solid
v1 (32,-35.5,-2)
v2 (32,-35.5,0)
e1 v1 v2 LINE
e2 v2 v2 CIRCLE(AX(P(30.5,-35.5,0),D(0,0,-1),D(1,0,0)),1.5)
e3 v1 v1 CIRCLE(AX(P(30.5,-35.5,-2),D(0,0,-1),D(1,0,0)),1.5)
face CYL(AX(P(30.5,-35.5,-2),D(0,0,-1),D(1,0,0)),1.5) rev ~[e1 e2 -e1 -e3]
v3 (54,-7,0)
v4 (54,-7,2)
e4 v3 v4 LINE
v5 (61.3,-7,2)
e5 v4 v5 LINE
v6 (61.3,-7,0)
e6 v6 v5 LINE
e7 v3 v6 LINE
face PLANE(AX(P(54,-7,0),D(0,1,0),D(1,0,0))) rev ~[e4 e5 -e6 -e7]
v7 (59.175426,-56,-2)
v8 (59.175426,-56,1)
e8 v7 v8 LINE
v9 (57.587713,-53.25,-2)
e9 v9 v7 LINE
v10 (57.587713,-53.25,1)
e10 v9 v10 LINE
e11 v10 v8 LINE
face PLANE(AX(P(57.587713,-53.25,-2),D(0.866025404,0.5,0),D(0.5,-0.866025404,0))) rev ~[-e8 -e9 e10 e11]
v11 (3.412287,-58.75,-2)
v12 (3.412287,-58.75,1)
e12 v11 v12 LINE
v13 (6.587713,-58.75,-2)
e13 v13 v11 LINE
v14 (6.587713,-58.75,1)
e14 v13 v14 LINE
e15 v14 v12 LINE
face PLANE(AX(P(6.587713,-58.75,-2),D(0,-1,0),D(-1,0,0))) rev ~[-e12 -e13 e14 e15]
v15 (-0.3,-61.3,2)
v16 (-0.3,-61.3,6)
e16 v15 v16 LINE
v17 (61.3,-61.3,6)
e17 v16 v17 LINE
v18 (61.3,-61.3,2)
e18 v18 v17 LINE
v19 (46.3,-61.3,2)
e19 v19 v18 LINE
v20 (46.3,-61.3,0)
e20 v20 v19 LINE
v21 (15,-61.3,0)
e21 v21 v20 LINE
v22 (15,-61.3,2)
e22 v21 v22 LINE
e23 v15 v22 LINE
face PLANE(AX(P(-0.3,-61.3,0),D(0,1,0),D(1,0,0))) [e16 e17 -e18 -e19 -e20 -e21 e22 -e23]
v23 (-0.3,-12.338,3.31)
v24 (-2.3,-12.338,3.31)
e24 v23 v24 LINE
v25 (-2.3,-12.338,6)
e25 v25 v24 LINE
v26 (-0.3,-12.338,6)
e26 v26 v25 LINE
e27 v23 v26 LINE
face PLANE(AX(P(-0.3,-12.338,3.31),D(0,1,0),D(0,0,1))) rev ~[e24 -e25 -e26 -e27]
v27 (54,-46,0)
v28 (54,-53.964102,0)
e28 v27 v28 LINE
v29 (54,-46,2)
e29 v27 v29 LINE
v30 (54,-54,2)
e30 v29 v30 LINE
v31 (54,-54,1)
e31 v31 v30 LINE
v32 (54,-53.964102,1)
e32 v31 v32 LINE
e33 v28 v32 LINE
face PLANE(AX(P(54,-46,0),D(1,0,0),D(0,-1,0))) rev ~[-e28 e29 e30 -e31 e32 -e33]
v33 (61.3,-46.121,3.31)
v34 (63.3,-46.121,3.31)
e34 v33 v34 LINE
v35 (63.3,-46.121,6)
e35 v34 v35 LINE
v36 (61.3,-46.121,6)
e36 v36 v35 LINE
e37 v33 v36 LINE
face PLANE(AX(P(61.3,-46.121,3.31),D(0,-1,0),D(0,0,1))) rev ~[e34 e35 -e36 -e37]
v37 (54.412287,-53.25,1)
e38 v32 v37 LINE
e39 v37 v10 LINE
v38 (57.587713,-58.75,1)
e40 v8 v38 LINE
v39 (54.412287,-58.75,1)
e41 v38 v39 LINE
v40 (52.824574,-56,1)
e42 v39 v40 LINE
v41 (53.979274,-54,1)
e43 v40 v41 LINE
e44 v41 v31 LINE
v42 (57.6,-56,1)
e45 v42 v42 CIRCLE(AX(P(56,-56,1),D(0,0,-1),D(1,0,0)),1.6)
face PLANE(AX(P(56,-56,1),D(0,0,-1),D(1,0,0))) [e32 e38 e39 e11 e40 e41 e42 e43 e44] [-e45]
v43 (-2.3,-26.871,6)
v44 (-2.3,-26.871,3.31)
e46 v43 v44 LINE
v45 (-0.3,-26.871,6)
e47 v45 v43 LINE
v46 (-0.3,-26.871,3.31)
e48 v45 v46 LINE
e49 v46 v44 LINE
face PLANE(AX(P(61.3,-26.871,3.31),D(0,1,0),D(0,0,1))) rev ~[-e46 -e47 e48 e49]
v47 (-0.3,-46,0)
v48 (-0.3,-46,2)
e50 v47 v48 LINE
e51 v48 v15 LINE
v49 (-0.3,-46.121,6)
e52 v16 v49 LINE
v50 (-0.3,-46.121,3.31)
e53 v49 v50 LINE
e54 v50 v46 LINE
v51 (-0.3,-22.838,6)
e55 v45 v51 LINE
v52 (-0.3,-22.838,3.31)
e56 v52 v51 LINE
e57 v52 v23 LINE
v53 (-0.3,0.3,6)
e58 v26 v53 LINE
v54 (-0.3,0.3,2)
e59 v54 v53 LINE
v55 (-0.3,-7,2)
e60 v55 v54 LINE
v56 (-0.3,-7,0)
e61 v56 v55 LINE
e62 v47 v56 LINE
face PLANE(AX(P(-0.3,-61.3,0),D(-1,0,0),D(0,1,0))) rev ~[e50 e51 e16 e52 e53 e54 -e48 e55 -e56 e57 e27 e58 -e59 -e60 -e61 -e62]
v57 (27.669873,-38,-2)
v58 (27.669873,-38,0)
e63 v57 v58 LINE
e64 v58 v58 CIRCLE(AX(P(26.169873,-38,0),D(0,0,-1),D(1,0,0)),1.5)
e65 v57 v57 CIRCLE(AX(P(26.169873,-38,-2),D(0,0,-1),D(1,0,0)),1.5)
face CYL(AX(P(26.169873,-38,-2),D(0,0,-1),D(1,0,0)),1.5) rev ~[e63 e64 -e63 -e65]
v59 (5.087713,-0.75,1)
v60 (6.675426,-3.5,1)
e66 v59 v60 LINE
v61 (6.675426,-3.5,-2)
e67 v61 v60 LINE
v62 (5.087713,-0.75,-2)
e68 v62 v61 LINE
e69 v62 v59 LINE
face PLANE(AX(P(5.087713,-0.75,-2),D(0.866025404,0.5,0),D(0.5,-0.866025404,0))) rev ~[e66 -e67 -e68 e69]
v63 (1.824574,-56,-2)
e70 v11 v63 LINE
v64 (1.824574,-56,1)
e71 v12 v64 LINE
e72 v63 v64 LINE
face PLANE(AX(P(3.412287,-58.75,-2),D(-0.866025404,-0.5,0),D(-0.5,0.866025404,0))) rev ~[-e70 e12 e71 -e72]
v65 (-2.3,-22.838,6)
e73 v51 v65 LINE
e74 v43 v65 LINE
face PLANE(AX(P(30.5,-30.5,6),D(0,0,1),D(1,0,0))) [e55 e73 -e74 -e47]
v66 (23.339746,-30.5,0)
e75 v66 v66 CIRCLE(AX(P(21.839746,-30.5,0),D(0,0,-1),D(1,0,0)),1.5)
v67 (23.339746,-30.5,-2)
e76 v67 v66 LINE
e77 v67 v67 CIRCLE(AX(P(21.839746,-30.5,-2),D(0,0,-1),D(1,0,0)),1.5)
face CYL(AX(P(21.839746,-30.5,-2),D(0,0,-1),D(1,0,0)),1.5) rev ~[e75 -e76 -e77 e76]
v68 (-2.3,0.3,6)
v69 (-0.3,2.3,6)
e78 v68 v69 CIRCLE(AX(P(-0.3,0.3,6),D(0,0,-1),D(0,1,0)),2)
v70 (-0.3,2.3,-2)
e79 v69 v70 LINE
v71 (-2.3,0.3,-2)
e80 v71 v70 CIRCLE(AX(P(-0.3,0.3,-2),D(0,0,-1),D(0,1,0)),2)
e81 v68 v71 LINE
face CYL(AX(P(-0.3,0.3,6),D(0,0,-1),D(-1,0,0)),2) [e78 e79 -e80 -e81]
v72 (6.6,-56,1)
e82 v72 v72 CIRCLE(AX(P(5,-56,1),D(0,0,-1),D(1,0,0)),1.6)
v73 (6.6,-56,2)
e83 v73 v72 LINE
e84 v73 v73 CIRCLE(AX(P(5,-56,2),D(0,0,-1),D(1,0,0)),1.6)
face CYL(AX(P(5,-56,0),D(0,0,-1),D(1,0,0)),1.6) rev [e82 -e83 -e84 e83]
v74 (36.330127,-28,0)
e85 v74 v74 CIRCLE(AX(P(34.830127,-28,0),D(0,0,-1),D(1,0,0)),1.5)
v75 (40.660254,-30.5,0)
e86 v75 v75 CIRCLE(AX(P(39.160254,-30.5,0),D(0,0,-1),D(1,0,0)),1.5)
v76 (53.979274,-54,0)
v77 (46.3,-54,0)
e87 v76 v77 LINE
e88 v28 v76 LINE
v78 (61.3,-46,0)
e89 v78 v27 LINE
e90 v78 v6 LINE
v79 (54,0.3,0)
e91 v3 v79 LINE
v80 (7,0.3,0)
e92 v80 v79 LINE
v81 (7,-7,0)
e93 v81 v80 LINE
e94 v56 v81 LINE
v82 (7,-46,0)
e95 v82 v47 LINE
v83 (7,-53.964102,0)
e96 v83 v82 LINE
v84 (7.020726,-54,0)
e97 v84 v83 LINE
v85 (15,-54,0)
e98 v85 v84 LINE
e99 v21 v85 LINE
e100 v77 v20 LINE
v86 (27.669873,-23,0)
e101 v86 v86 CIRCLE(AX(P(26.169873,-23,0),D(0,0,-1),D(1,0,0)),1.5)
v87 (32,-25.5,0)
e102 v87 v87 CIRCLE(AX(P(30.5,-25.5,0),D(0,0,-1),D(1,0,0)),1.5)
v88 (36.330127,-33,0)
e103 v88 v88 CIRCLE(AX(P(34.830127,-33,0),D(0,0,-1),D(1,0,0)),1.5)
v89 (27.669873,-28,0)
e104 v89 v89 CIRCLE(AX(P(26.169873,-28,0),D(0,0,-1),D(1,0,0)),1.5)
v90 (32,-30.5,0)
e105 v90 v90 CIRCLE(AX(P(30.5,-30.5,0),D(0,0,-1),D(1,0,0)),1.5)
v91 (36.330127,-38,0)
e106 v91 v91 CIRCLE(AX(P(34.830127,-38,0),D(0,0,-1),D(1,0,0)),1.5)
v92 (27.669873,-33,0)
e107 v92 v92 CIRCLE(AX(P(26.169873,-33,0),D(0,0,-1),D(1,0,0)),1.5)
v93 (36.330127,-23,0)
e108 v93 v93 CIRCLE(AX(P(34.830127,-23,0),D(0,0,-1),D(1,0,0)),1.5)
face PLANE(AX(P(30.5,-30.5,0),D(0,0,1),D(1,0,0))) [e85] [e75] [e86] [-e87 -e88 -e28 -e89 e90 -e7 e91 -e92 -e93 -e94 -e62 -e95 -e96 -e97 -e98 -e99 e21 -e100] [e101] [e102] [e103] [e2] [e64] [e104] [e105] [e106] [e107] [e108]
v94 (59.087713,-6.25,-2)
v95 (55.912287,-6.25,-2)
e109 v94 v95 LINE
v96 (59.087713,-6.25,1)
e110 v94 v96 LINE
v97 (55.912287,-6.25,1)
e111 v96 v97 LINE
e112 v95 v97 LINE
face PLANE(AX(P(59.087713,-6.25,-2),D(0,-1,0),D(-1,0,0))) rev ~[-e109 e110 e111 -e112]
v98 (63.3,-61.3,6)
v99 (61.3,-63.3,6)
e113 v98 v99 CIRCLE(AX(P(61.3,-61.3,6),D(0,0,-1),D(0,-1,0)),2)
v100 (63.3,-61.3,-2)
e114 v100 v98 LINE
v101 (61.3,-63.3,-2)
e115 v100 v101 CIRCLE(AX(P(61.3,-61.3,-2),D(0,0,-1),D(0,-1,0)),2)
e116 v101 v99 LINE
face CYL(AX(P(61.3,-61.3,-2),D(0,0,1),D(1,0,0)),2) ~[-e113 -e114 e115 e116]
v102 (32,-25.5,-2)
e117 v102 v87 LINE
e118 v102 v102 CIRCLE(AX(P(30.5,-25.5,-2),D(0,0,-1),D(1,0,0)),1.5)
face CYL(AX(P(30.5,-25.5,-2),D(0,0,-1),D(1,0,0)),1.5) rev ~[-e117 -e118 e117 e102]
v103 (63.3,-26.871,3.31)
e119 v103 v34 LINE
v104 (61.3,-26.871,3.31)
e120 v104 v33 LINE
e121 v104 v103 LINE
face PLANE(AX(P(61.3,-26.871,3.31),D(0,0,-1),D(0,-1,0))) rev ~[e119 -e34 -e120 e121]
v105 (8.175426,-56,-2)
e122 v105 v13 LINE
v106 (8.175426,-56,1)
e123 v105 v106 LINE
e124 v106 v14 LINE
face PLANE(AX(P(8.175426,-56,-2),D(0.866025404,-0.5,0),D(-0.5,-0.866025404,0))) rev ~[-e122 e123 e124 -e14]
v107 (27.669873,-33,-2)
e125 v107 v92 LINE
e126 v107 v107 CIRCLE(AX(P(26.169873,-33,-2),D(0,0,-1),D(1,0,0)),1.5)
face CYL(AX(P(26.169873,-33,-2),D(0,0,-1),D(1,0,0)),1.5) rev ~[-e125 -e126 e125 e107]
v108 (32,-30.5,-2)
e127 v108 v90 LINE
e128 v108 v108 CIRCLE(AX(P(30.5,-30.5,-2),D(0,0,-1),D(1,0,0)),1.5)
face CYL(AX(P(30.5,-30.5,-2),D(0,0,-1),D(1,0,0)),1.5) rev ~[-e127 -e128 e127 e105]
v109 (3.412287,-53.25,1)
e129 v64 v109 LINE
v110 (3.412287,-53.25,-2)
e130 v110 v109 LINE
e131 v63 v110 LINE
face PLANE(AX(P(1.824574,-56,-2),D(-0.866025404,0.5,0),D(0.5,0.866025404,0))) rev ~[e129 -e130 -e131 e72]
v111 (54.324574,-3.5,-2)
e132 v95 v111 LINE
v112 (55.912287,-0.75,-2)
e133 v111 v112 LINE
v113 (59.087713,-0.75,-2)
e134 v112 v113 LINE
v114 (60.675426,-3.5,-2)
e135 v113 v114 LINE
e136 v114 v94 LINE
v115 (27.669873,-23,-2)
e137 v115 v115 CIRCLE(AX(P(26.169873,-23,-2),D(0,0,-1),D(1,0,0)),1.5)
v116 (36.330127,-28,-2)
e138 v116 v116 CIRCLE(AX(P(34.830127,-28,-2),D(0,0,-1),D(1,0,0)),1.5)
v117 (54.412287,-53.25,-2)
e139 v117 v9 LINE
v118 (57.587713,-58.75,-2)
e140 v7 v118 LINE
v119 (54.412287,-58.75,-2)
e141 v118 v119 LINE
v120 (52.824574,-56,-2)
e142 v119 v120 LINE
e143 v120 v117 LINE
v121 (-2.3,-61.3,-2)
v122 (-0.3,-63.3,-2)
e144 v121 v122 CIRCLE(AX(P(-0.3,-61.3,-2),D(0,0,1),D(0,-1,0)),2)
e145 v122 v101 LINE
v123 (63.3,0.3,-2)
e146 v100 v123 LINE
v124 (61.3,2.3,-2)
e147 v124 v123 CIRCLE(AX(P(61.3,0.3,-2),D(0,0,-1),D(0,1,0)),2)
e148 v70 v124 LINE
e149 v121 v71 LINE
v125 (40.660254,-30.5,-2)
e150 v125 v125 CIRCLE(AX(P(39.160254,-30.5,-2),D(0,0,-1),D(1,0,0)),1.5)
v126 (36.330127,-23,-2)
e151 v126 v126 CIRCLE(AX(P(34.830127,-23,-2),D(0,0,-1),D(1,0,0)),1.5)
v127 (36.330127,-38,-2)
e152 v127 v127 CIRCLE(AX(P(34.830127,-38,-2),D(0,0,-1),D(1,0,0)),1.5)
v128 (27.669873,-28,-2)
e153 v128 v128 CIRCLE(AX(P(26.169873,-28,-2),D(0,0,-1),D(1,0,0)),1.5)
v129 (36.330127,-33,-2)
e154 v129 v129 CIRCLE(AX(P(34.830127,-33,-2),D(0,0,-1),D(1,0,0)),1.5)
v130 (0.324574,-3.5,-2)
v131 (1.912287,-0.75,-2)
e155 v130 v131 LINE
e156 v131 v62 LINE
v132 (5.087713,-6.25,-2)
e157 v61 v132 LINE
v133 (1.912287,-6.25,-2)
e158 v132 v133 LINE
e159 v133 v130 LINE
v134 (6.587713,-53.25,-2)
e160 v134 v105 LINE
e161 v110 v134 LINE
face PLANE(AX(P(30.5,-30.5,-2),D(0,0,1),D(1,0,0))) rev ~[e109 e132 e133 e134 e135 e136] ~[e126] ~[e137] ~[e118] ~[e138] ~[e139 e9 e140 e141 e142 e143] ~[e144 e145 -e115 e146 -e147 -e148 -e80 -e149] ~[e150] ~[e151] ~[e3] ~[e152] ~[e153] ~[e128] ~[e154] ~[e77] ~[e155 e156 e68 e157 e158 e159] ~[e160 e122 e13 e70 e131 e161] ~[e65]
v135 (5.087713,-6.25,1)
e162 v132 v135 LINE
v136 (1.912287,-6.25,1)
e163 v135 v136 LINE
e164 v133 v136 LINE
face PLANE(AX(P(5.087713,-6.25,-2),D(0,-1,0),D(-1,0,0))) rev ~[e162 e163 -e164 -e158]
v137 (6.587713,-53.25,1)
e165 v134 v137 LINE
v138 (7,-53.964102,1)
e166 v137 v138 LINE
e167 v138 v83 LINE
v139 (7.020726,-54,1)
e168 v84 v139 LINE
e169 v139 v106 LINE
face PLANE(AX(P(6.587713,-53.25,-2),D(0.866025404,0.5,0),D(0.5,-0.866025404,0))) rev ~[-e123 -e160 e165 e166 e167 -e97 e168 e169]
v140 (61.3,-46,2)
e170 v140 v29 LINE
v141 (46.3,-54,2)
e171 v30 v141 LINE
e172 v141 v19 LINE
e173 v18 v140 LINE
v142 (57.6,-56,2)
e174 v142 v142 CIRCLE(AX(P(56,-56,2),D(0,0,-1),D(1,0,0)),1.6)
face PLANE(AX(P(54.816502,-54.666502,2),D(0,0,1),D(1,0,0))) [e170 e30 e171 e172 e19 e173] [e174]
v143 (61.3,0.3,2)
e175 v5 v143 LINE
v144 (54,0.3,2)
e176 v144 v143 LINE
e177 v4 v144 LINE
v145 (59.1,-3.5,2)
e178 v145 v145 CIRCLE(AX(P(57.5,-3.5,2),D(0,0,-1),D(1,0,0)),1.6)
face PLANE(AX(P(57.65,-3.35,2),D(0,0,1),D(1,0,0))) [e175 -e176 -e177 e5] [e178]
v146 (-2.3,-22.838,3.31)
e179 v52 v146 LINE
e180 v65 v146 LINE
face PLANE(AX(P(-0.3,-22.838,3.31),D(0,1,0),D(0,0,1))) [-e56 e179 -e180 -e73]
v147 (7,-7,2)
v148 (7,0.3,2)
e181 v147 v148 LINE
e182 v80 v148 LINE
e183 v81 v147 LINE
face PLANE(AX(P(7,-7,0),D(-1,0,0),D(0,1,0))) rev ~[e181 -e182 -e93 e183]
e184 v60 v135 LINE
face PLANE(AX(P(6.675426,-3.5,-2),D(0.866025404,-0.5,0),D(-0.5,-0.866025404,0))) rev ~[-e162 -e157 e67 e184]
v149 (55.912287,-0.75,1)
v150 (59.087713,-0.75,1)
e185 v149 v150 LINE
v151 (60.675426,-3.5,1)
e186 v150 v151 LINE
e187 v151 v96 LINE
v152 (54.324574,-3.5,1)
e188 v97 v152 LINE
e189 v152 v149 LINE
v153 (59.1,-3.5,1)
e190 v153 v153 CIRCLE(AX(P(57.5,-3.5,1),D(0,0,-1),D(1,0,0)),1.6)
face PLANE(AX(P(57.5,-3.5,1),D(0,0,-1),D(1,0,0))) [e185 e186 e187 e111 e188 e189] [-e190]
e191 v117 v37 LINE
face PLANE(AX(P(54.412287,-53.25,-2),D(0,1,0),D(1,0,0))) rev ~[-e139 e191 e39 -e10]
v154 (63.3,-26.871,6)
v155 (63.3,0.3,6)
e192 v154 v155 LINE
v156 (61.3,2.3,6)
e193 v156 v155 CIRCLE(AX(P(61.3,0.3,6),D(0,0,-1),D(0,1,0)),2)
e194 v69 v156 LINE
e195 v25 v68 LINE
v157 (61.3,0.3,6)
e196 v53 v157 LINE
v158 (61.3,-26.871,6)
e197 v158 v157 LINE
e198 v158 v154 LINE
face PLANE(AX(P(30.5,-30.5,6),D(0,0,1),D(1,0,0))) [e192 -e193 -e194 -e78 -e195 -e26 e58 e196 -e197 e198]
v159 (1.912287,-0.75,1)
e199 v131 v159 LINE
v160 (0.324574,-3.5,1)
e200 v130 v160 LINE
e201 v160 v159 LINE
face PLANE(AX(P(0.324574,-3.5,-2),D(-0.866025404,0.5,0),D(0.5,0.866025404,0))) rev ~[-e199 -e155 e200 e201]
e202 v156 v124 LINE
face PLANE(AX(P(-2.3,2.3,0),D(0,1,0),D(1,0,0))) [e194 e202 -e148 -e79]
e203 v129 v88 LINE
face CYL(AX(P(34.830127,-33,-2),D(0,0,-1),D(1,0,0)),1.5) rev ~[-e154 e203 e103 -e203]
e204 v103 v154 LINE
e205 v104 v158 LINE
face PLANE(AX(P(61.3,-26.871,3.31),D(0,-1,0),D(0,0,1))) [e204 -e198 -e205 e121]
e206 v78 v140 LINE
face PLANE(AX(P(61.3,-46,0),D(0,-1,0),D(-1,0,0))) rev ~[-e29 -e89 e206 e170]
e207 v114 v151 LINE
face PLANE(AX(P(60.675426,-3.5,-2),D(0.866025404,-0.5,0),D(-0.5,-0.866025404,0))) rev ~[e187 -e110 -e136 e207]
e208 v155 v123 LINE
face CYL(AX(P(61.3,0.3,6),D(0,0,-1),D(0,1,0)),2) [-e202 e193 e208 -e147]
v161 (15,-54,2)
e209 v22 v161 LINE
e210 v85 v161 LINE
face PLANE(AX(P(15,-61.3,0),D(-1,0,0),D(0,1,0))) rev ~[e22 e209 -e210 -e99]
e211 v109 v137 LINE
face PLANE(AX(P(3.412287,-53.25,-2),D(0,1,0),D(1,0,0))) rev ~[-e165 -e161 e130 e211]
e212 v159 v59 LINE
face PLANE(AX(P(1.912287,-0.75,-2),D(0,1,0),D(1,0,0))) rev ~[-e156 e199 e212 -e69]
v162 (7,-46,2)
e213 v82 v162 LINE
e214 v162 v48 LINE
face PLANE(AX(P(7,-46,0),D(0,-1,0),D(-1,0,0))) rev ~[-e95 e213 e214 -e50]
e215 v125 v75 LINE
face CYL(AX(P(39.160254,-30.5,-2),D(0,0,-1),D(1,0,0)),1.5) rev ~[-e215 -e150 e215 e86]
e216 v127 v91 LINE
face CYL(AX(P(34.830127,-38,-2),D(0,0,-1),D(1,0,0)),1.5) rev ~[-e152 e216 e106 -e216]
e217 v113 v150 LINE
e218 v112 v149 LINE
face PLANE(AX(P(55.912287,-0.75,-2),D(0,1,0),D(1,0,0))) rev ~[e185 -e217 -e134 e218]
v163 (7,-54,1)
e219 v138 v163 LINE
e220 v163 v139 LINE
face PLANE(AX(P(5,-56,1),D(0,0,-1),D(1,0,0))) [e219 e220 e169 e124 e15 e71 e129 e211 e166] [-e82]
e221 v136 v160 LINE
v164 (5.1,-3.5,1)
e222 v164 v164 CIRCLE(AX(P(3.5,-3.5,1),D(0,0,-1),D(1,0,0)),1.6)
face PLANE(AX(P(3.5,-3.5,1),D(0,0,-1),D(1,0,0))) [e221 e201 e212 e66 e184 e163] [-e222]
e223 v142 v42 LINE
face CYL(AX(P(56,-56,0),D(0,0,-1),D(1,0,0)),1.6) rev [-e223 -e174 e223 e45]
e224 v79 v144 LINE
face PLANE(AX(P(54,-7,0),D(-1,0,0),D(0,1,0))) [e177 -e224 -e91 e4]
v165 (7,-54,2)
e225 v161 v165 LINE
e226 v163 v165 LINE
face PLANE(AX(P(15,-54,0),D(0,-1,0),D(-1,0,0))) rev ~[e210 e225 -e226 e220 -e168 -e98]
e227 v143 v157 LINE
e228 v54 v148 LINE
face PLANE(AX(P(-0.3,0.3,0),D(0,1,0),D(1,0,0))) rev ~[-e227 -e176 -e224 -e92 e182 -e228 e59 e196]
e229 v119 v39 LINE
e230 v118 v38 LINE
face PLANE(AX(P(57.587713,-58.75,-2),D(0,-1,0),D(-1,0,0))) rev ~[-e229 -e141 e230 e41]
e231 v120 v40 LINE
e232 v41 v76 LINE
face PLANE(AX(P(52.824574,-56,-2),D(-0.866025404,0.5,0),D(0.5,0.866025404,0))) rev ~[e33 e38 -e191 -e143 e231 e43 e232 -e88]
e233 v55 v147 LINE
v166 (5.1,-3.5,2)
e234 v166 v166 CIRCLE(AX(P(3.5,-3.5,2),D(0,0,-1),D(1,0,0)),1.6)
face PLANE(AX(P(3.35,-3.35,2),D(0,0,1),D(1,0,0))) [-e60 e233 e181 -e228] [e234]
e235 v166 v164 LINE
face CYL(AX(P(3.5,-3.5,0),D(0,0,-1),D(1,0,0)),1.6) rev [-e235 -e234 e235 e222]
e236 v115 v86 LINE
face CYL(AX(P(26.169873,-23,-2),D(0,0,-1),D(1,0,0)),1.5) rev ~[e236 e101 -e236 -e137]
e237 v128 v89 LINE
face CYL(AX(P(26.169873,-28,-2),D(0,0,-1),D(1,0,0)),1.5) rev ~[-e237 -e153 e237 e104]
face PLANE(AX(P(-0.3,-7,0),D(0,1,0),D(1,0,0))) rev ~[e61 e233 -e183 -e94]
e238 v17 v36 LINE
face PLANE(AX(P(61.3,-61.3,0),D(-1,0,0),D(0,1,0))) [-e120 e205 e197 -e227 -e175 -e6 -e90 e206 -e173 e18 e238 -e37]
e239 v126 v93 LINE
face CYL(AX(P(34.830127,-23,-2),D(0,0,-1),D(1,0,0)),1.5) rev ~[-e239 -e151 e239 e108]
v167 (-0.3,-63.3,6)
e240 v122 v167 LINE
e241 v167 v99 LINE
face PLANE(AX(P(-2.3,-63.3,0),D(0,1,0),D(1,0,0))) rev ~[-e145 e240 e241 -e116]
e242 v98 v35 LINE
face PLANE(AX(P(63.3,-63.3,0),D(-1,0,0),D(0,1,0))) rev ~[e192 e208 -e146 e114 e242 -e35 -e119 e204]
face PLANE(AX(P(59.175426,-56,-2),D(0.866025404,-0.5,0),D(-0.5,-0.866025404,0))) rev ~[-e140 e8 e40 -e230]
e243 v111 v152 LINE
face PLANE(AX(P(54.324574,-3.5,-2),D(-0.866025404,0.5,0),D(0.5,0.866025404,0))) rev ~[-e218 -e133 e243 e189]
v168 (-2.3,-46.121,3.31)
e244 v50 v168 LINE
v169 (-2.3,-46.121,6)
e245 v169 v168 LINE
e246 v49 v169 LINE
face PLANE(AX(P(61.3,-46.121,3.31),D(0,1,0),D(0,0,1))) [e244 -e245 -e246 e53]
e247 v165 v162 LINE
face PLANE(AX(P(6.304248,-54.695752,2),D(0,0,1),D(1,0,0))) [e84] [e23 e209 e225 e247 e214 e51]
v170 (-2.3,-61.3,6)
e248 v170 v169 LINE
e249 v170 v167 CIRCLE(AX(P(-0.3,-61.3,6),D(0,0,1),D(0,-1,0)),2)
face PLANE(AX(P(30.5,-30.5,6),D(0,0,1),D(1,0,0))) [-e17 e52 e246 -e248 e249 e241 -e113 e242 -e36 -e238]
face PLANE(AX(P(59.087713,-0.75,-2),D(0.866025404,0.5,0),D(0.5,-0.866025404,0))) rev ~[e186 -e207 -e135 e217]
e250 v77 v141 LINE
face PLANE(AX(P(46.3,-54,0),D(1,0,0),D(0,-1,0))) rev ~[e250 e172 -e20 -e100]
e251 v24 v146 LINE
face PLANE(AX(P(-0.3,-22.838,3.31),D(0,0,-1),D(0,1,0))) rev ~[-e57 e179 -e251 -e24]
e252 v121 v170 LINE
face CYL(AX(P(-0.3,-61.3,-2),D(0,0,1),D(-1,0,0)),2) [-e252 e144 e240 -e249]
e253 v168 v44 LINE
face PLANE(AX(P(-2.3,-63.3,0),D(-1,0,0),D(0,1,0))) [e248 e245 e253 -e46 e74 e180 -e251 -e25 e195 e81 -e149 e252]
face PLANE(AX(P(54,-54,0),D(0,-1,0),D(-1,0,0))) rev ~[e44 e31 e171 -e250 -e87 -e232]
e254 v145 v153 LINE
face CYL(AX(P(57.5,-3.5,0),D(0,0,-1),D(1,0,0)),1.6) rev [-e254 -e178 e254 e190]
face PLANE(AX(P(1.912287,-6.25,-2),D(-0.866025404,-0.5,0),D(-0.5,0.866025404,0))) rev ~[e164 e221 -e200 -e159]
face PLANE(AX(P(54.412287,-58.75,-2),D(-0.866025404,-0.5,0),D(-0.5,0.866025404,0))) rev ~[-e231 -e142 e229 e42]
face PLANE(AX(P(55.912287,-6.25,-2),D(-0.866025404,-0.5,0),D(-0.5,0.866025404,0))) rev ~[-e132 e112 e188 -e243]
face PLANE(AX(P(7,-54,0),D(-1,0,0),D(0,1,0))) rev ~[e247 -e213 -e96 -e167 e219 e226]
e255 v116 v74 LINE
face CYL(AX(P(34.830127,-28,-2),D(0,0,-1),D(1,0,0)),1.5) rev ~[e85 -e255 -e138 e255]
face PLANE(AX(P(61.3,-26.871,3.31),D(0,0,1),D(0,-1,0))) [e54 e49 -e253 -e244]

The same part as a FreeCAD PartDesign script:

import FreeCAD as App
import Part
import Sketcher
Q = App.Units.Quantity


def edges_at(feature, points):
    """Names of the edges that pass closest to the given points."""
    edges = feature.Shape.Edges
    near = lambda p: min(range(len(edges)), key=lambda i: edges[i].distToShape(Part.Vertex(*p))[0])
    return sorted({f"Edge{near(p) + 1}" for p in points})

doc = App.newDocument("Part")
body = doc.addObject("PartDesign::Body", "Body")

# Sketch on XY plane
sketch1 = body.newObject("Sketcher::SketchObject", "Sketch")
sketch1.AttachmentSupport = (doc.getObject("XY_Plane"), [""])
sketch1.MapMode = "FlatFace"
sketch1.addGeometry([
    Part.LineSegment(App.Vector(-2.3, 2.3, 0), App.Vector(-2.3, -63.3, 0)),  # 0
    Part.LineSegment(App.Vector(-2.3, -63.3, 0), App.Vector(63.3, -63.3, 0)),  # 1
    Part.LineSegment(App.Vector(63.3, -63.3, 0), App.Vector(63.3, 2.3, 0)),  # 2
    Part.LineSegment(App.Vector(63.3, 2.3, 0), App.Vector(-2.3, 2.3, 0)),  # 3
    Part.Circle(App.Vector(5, -56, 0), App.Vector(0, 0, 1), 1.6),  # 4
    Part.Circle(App.Vector(56, -56, 0), App.Vector(0, 0, 1), 1.6),  # 5
    Part.Circle(App.Vector(3.5, -3.5, 0), App.Vector(0, 0, 1), 1.6),  # 6
    Part.Circle(App.Vector(57.5, -3.5, 0), App.Vector(0, 0, 1), 1.6),  # 7
], False)
sketch1.addConstraint([
    Sketcher.Constraint("Coincident", 0, 2, 1, 1),
    Sketcher.Constraint("Coincident", 1, 2, 2, 1),
    Sketcher.Constraint("Coincident", 2, 2, 3, 1),
    Sketcher.Constraint("Coincident", 3, 2, 0, 1),
    Sketcher.Constraint("Vertical", 0),
    Sketcher.Constraint("Horizontal", 1),
    Sketcher.Constraint("Vertical", 2),
    Sketcher.Constraint("Horizontal", 3),
    Sketcher.Constraint("Equal", 4, 5),
    Sketcher.Constraint("Equal", 5, 6),
    Sketcher.Constraint("Equal", 6, 7),
    Sketcher.Constraint("Horizontal", 4, 3, 5, 3),
    Sketcher.Constraint("Horizontal", 6, 3, 7, 3),
    Sketcher.Constraint("Equal", 3, 0),
    Sketcher.Constraint("Diameter", 4, Q("3.2 mm")),
    Sketcher.Constraint("DistanceX", 1, 1, 1, 2, Q("65.6 mm")),
    Sketcher.Constraint("DistanceX", -1, 1, 4, 3, Q("5 mm")),
    Sketcher.Constraint("DistanceY", 4, 3, -1, 1, Q("56 mm")),
    Sketcher.Constraint("DistanceX", -1, 1, 5, 3, Q("56 mm")),
    Sketcher.Constraint("DistanceX", 6, 3, 7, 3, Q("54 mm")),
    Sketcher.Constraint("DistanceX", -1, 1, 6, 3, Q("3.5 mm")),
    Sketcher.Constraint("DistanceY", 6, 3, -1, 1, Q("3.5 mm")),
    Sketcher.Constraint("DistanceX", 0, 2, -1, 1, Q("2.3 mm")),
    Sketcher.Constraint("DistanceY", 0, 2, -1, 1, Q("63.3 mm")),
])
pad1 = body.newObject("PartDesign::Pad", "Pad")
pad1.Profile = sketch1
pad1.Length = 2
pad1.Reversed = True

# Sketch on XY plane
sketch2 = body.newObject("Sketcher::SketchObject", "Sketch001")
sketch2.AttachmentSupport = (doc.getObject("XY_Plane"), [""])
sketch2.MapMode = "FlatFace"
sketch2.addGeometry([
    Part.LineSegment(App.Vector(-2, 2, 0), App.Vector(-2, -63, 0)),  # 0
    Part.LineSegment(App.Vector(-2, -63, 0), App.Vector(63, -63, 0)),  # 1
    Part.LineSegment(App.Vector(63, -63, 0), App.Vector(63, 2, 0)),  # 2
    Part.LineSegment(App.Vector(63, 2, 0), App.Vector(-2, 2, 0)),  # 3
    Part.LineSegment(App.Vector(61, -61, 0), App.Vector(0, -61, 0)),  # 4
    Part.LineSegment(App.Vector(0, -61, 0), App.Vector(0, 0, 0)),  # 5
    Part.LineSegment(App.Vector(0, 0, 0), App.Vector(61, 0, 0)),  # 6
    Part.LineSegment(App.Vector(61, 0, 0), App.Vector(61, -61, 0)),  # 7
], False)
sketch2.addConstraint([
    Sketcher.Constraint("Coincident", 0, 2, 1, 1),
    Sketcher.Constraint("Coincident", 1, 2, 2, 1),
    Sketcher.Constraint("Coincident", 2, 2, 3, 1),
    Sketcher.Constraint("Coincident", 3, 2, 0, 1),
    Sketcher.Constraint("Coincident", 4, 2, 5, 1),
    Sketcher.Constraint("Coincident", 5, 2, 6, 1),
    Sketcher.Constraint("Coincident", 6, 2, 7, 1),
    Sketcher.Constraint("Coincident", 7, 2, 4, 1),
    Sketcher.Constraint("Vertical", 0),
    Sketcher.Constraint("Horizontal", 1),
    Sketcher.Constraint("Vertical", 2),
    Sketcher.Constraint("Horizontal", 3),
    Sketcher.Constraint("Horizontal", 4),
    Sketcher.Constraint("Vertical", 5),
    Sketcher.Constraint("Horizontal", 6),
    Sketcher.Constraint("Vertical", 7),
    Sketcher.Constraint("Equal", 3, 0),
    Sketcher.Constraint("Equal", 6, 5),
    Sketcher.Constraint("DistanceX", 1, 1, 1, 2, Q("65.6 mm")),
    Sketcher.Constraint("DistanceX", 4, 2, 4, 1, Q("61.6 mm")),
    Sketcher.Constraint("DistanceX", 0, 2, 4, 2, Q("2 mm")),
    Sketcher.Constraint("DistanceY", 0, 2, 4, 2, Q("2 mm")),
    Sketcher.Constraint("DistanceX", 0, 2, -1, 1, Q("2.3 mm")),
    Sketcher.Constraint("DistanceY", 0, 2, -1, 1, Q("63.3 mm")),
])
pad2 = body.newObject("PartDesign::Pad", "Pad001")
pad2.Profile = sketch2
pad2.Length = 6

# Sketch on XY plane
sketch3 = body.newObject("Sketcher::SketchObject", "Sketch002")
sketch3.AttachmentSupport = (doc.getObject("XY_Plane"), [""])
sketch3.MapMode = "FlatFace"
sketch3.addGeometry([
    Part.LineSegment(App.Vector(54, 0, 0), App.Vector(54, -7, 0)),  # 0
    Part.LineSegment(App.Vector(54, -7, 0), App.Vector(61, -7, 0)),  # 1
    Part.LineSegment(App.Vector(61, -7, 0), App.Vector(61, 0, 0)),  # 2
    Part.LineSegment(App.Vector(61, 0, 0), App.Vector(54, 0, 0)),  # 3
    Part.LineSegment(App.Vector(0, 0, 0), App.Vector(0, -7, 0)),  # 4
    Part.LineSegment(App.Vector(0, -7, 0), App.Vector(7, -7, 0)),  # 5
    Part.LineSegment(App.Vector(7, -7, 0), App.Vector(7, 0, 0)),  # 6
    Part.LineSegment(App.Vector(7, 0, 0), App.Vector(0, 0, 0)),  # 7
    Part.LineSegment(App.Vector(7, -46, 0), App.Vector(0, -46, 0)),  # 8
    Part.LineSegment(App.Vector(0, -46, 0), App.Vector(0, -61, 0)),  # 9
    Part.LineSegment(App.Vector(0, -61, 0), App.Vector(15, -61, 0)),  # 10
    Part.LineSegment(App.Vector(15, -61, 0), App.Vector(15, -54, 0)),  # 11
    Part.LineSegment(App.Vector(15, -54, 0), App.Vector(7, -54, 0)),  # 12
    Part.LineSegment(App.Vector(7, -54, 0), App.Vector(7, -46, 0)),  # 13
    Part.LineSegment(App.Vector(61, -61, 0), App.Vector(61, -46, 0)),  # 14
    Part.LineSegment(App.Vector(61, -46, 0), App.Vector(54, -46, 0)),  # 15
    Part.LineSegment(App.Vector(54, -46, 0), App.Vector(54, -54, 0)),  # 16
    Part.LineSegment(App.Vector(54, -54, 0), App.Vector(46, -54, 0)),  # 17
    Part.LineSegment(App.Vector(46, -54, 0), App.Vector(46, -61, 0)),  # 18
    Part.LineSegment(App.Vector(46, -61, 0), App.Vector(61, -61, 0)),  # 19
], False)
sketch3.addConstraint([
    Sketcher.Constraint("Coincident", 0, 2, 1, 1),
    Sketcher.Constraint("Coincident", 1, 2, 2, 1),
    Sketcher.Constraint("Coincident", 2, 2, 3, 1),
    Sketcher.Constraint("Coincident", 3, 2, 0, 1),
    Sketcher.Constraint("Coincident", 4, 2, 5, 1),
    Sketcher.Constraint("Coincident", 5, 2, 6, 1),
    Sketcher.Constraint("Coincident", 6, 2, 7, 1),
    Sketcher.Constraint("Coincident", 7, 2, 4, 1),
    Sketcher.Constraint("Coincident", 8, 2, 9, 1),
    Sketcher.Constraint("Coincident", 9, 2, 10, 1),
    Sketcher.Constraint("Coincident", 10, 2, 11, 1),
    Sketcher.Constraint("Coincident", 11, 2, 12, 1),
    Sketcher.Constraint("Coincident", 12, 2, 13, 1),
    Sketcher.Constraint("Coincident", 13, 2, 8, 1),
    Sketcher.Constraint("Coincident", 14, 2, 15, 1),
    Sketcher.Constraint("Coincident", 15, 2, 16, 1),
    Sketcher.Constraint("Coincident", 16, 2, 17, 1),
    Sketcher.Constraint("Coincident", 17, 2, 18, 1),
    Sketcher.Constraint("Coincident", 18, 2, 19, 1),
    Sketcher.Constraint("Coincident", 19, 2, 14, 1),
    Sketcher.Constraint("Vertical", 0),
    Sketcher.Constraint("Horizontal", 1),
    Sketcher.Constraint("Vertical", 2),
    Sketcher.Constraint("Horizontal", 3),
    Sketcher.Constraint("Vertical", 4),
    Sketcher.Constraint("Horizontal", 5),
    Sketcher.Constraint("Vertical", 6),
    Sketcher.Constraint("Horizontal", 7),
    Sketcher.Constraint("Horizontal", 8),
    Sketcher.Constraint("Vertical", 9),
    Sketcher.Constraint("Horizontal", 10),
    Sketcher.Constraint("Vertical", 11),
    Sketcher.Constraint("Horizontal", 12),
    Sketcher.Constraint("Vertical", 13),
    Sketcher.Constraint("Vertical", 14),
    Sketcher.Constraint("Horizontal", 15),
    Sketcher.Constraint("Vertical", 16),
    Sketcher.Constraint("Horizontal", 17),
    Sketcher.Constraint("Vertical", 18),
    Sketcher.Constraint("Horizontal", 19),
    Sketcher.Constraint("Horizontal", 1, 2, 4, 2),
    Sketcher.Constraint("Horizontal", 3, 2, 6, 2),
    Sketcher.Constraint("Horizontal", 13, 2, 14, 2),
    Sketcher.Constraint("Horizontal", 12, 2, 16, 2),
    Sketcher.Constraint("Horizontal", 10, 2, 18, 2),
    Sketcher.Constraint("Vertical", 7, 2, 8, 2),
    Sketcher.Constraint("Vertical", 6, 2, 12, 2),
    Sketcher.Constraint("Vertical", 2, 2, 14, 2),
    Sketcher.Constraint("Vertical", 3, 2, 15, 2),
    Sketcher.Constraint("Equal", 3, 5),
    Sketcher.Constraint("Equal", 15, 0),
    Sketcher.Constraint("Equal", 10, 9),
    Sketcher.Constraint("Equal", 6, 11),
    Sketcher.Constraint("DistanceX", 12, 2, 12, 1, Q("8 mm")),
    Sketcher.Constraint("DistanceX", 19, 1, 19, 2, Q("15 mm")),
    Sketcher.Constraint("DistanceX", 1, 1, 1, 2, Q("7.3 mm")),
    Sketcher.Constraint("DistanceX", -1, 1, 0, 2, Q("54 mm")),
    Sketcher.Constraint("DistanceY", 0, 2, -1, 1, Q("7 mm")),
    Sketcher.Constraint("DistanceX", -1, 1, 5, 2, Q("7 mm")),
    Sketcher.Constraint("DistanceY", 8, 2, -1, 1, Q("46 mm")),
])
pad3 = body.newObject("PartDesign::Pad", "Pad002")
pad3.Profile = sketch3
pad3.Length = 2

# Sketch on XY plane
sketch4 = body.newObject("Sketcher::SketchObject", "Sketch003")
sketch4.AttachmentSupport = (doc.getObject("XY_Plane"), [""])
sketch4.MapMode = "FlatFace"
sketch4.addGeometry([
    Part.Circle(App.Vector(3.5, -3.5, 0), App.Vector(0, 0, 1), 1.6),
    Part.Circle(App.Vector(57.5, -3.5, 0), App.Vector(0, 0, 1), 1.6),
    Part.Circle(App.Vector(5, -56, 0), App.Vector(0, 0, 1), 1.6),
    Part.Circle(App.Vector(56, -56, 0), App.Vector(0, 0, 1), 1.6),
], False)
sketch4.addConstraint([
    Sketcher.Constraint("Equal", 0, 1),
    Sketcher.Constraint("Equal", 1, 2),
    Sketcher.Constraint("Equal", 2, 3),
    Sketcher.Constraint("Horizontal", 0, 3, 1, 3),
    Sketcher.Constraint("Horizontal", 2, 3, 3, 3),
    Sketcher.Constraint("Diameter", 0, Q("3.2 mm")),
    Sketcher.Constraint("DistanceX", -1, 1, 2, 3, Q("5 mm")),
    Sketcher.Constraint("DistanceY", 2, 3, -1, 1, Q("56 mm")),
    Sketcher.Constraint("DistanceX", -1, 1, 3, 3, Q("56 mm")),
    Sketcher.Constraint("DistanceX", 0, 3, 1, 3, Q("54 mm")),
    Sketcher.Constraint("DistanceX", -1, 1, 0, 3, Q("3.5 mm")),
    Sketcher.Constraint("DistanceY", 0, 3, -1, 1, Q("3.5 mm")),
])
pocket1 = body.newObject("PartDesign::Pocket", "Pocket")
pocket1.Profile = sketch4
pocket1.Type = "ThroughAll"
pocket1.Reversed = True

# Sketch on YZ plane
sketch5 = body.newObject("Sketcher::SketchObject", "Sketch004")
sketch5.AttachmentSupport = (doc.getObject("YZ_Plane"), [""])
sketch5.MapMode = "FlatFace"
sketch5.AttachmentOffset = App.Placement(App.Vector(0, 0, 61.3), App.Rotation())
sketch5.addGeometry([
    Part.LineSegment(App.Vector(-26.9, 6, 0), App.Vector(-26.9, 3.3, 0)),
    Part.LineSegment(App.Vector(-26.9, 3.3, 0), App.Vector(-46.1, 3.3, 0)),
    Part.LineSegment(App.Vector(-46.1, 3.3, 0), App.Vector(-46.1, 6, 0)),
    Part.LineSegment(App.Vector(-46.1, 6, 0), App.Vector(-26.9, 6, 0)),
], False)
sketch5.addConstraint([
    Sketcher.Constraint("Coincident", 0, 2, 1, 1),
    Sketcher.Constraint("Coincident", 1, 2, 2, 1),
    Sketcher.Constraint("Coincident", 2, 2, 3, 1),
    Sketcher.Constraint("Coincident", 3, 2, 0, 1),
    Sketcher.Constraint("Vertical", 0),
    Sketcher.Constraint("Horizontal", 1),
    Sketcher.Constraint("Vertical", 2),
    Sketcher.Constraint("Horizontal", 3),
    Sketcher.Constraint("DistanceY", -1, 1, 2, 2, Q("6 mm")),
    Sketcher.Constraint("DistanceX", 1, 2, 1, 1, Q("19.25 mm")),
    Sketcher.Constraint("DistanceY", 0, 2, 0, 1, Q("2.69 mm")),
    Sketcher.Constraint("DistanceX", 0, 2, -1, 1, Q("26.871 mm")),
])
pocket2 = body.newObject("PartDesign::Pocket", "Pocket001")
pocket2.Profile = sketch5
pocket2.Type = "ThroughAll"
pocket2.Midplane = True

# Sketch on YZ plane
sketch6 = body.newObject("Sketcher::SketchObject", "Sketch005")
sketch6.AttachmentSupport = (doc.getObject("YZ_Plane"), [""])
sketch6.MapMode = "FlatFace"
sketch6.AttachmentOffset = App.Placement(App.Vector(0, 0, -0.3), App.Rotation())
sketch6.addGeometry([
    Part.LineSegment(App.Vector(-22.8, 6, 0), App.Vector(-22.8, 3.3, 0)),
    Part.LineSegment(App.Vector(-22.8, 3.3, 0), App.Vector(-12.3, 3.3, 0)),
    Part.LineSegment(App.Vector(-12.3, 3.3, 0), App.Vector(-12.3, 6, 0)),
    Part.LineSegment(App.Vector(-12.3, 6, 0), App.Vector(-22.8, 6, 0)),
], False)
sketch6.addConstraint([
    Sketcher.Constraint("Coincident", 0, 2, 1, 1),
    Sketcher.Constraint("Coincident", 1, 2, 2, 1),
    Sketcher.Constraint("Coincident", 2, 2, 3, 1),
    Sketcher.Constraint("Coincident", 3, 2, 0, 1),
    Sketcher.Constraint("Vertical", 0),
    Sketcher.Constraint("Horizontal", 1),
    Sketcher.Constraint("Vertical", 2),
    Sketcher.Constraint("Horizontal", 3),
    Sketcher.Constraint("DistanceX", 1, 1, 1, 2, Q("10.5 mm")),
    Sketcher.Constraint("DistanceY", -1, 1, 2, 2, Q("6 mm")),
    Sketcher.Constraint("DistanceY", 0, 2, 0, 1, Q("2.69 mm")),
    Sketcher.Constraint("DistanceX", 0, 2, -1, 1, Q("22.838 mm")),
])
pocket3 = body.newObject("PartDesign::Pocket", "Pocket002")
pocket3.Profile = sketch6
pocket3.Type = "ThroughAll"

# Sketch on XY plane
sketch7 = body.newObject("Sketcher::SketchObject", "Sketch006")
sketch7.AttachmentSupport = (doc.getObject("XY_Plane"), [""])
sketch7.MapMode = "FlatFace"
sketch7.AttachmentOffset = App.Placement(App.Vector(0, 0, -2), App.Rotation())
sketch7.addGeometry([
    Part.LineSegment(App.Vector(1.9, -6.2, 0), App.Vector(0.3, -3.5, 0)),  # 0
    Part.LineSegment(App.Vector(0.3, -3.5, 0), App.Vector(1.9, -0.8, 0)),  # 1
    Part.LineSegment(App.Vector(1.9, -0.8, 0), App.Vector(5.1, -0.8, 0)),  # 2
    Part.LineSegment(App.Vector(5.1, -0.8, 0), App.Vector(6.7, -3.5, 0)),  # 3
    Part.LineSegment(App.Vector(6.7, -3.5, 0), App.Vector(5.1, -6.2, 0)),  # 4
    Part.LineSegment(App.Vector(5.1, -6.2, 0), App.Vector(1.9, -6.2, 0)),  # 5
    Part.LineSegment(App.Vector(55.9, -0.8, 0), App.Vector(59.1, -0.8, 0)),  # 6
    Part.LineSegment(App.Vector(59.1, -0.8, 0), App.Vector(60.7, -3.5, 0)),  # 7
    Part.LineSegment(App.Vector(60.7, -3.5, 0), App.Vector(59.1, -6.2, 0)),  # 8
    Part.LineSegment(App.Vector(59.1, -6.2, 0), App.Vector(55.9, -6.2, 0)),  # 9
    Part.LineSegment(App.Vector(55.9, -6.2, 0), App.Vector(54.3, -3.5, 0)),  # 10
    Part.LineSegment(App.Vector(54.3, -3.5, 0), App.Vector(55.9, -0.8, 0)),  # 11
    Part.LineSegment(App.Vector(6.6, -53.2, 0), App.Vector(8.2, -56, 0)),  # 12
    Part.LineSegment(App.Vector(8.2, -56, 0), App.Vector(6.6, -58.8, 0)),  # 13
    Part.LineSegment(App.Vector(6.6, -58.8, 0), App.Vector(3.4, -58.8, 0)),  # 14
    Part.LineSegment(App.Vector(3.4, -58.8, 0), App.Vector(1.8, -56, 0)),  # 15
    Part.LineSegment(App.Vector(1.8, -56, 0), App.Vector(3.4, -53.2, 0)),  # 16
    Part.LineSegment(App.Vector(3.4, -53.2, 0), App.Vector(6.6, -53.2, 0)),  # 17
    Part.LineSegment(App.Vector(54.4, -53.2, 0), App.Vector(57.6, -53.2, 0)),  # 18
    Part.LineSegment(App.Vector(57.6, -53.2, 0), App.Vector(59.2, -56, 0)),  # 19
    Part.LineSegment(App.Vector(59.2, -56, 0), App.Vector(57.6, -58.8, 0)),  # 20
    Part.LineSegment(App.Vector(57.6, -58.8, 0), App.Vector(54.4, -58.8, 0)),  # 21
    Part.LineSegment(App.Vector(54.4, -58.8, 0), App.Vector(52.8, -56, 0)),  # 22
    Part.LineSegment(App.Vector(52.8, -56, 0), App.Vector(54.4, -53.2, 0)),  # 23
], False)
sketch7.addConstraint([
    Sketcher.Constraint("Coincident", 0, 2, 1, 1),
    Sketcher.Constraint("Coincident", 1, 2, 2, 1),
    Sketcher.Constraint("Coincident", 2, 2, 3, 1),
    Sketcher.Constraint("Coincident", 3, 2, 4, 1),
    Sketcher.Constraint("Coincident", 4, 2, 5, 1),
    Sketcher.Constraint("Coincident", 5, 2, 0, 1),
    Sketcher.Constraint("Coincident", 6, 2, 7, 1),
    Sketcher.Constraint("Coincident", 7, 2, 8, 1),
    Sketcher.Constraint("Coincident", 8, 2, 9, 1),
    Sketcher.Constraint("Coincident", 9, 2, 10, 1),
    Sketcher.Constraint("Coincident", 10, 2, 11, 1),
    Sketcher.Constraint("Coincident", 11, 2, 6, 1),
    Sketcher.Constraint("Coincident", 12, 2, 13, 1),
    Sketcher.Constraint("Coincident", 13, 2, 14, 1),
    Sketcher.Constraint("Coincident", 14, 2, 15, 1),
    Sketcher.Constraint("Coincident", 15, 2, 16, 1),
    Sketcher.Constraint("Coincident", 16, 2, 17, 1),
    Sketcher.Constraint("Coincident", 17, 2, 12, 1),
    Sketcher.Constraint("Coincident", 18, 2, 19, 1),
    Sketcher.Constraint("Coincident", 19, 2, 20, 1),
    Sketcher.Constraint("Coincident", 20, 2, 21, 1),
    Sketcher.Constraint("Coincident", 21, 2, 22, 1),
    Sketcher.Constraint("Coincident", 22, 2, 23, 1),
    Sketcher.Constraint("Coincident", 23, 2, 18, 1),
    Sketcher.Constraint("Horizontal", 2),
    Sketcher.Constraint("Horizontal", 5),
    Sketcher.Constraint("Horizontal", 6),
    Sketcher.Constraint("Horizontal", 9),
    Sketcher.Constraint("Horizontal", 14),
    Sketcher.Constraint("Horizontal", 17),
    Sketcher.Constraint("Horizontal", 18),
    Sketcher.Constraint("Horizontal", 21),
    Sketcher.Constraint("Parallel", 0, 3),
    Sketcher.Constraint("Parallel", 1, 4),
    Sketcher.Constraint("Parallel", 3, 7),
    Sketcher.Constraint("Parallel", 4, 8),
    Sketcher.Constraint("Parallel", 7, 10),
    Sketcher.Constraint("Parallel", 8, 11),
    Sketcher.Constraint("Parallel", 10, 12),
    Sketcher.Constraint("Parallel", 11, 13),
    Sketcher.Constraint("Parallel", 12, 15),
    Sketcher.Constraint("Parallel", 13, 16),
    Sketcher.Constraint("Parallel", 15, 19),
    Sketcher.Constraint("Parallel", 16, 20),
    Sketcher.Constraint("Parallel", 19, 22),
    Sketcher.Constraint("Parallel", 20, 23),
    Sketcher.Constraint("Horizontal", 0, 2, 3, 2),
    Sketcher.Constraint("Horizontal", 2, 2, 6, 2),
    Sketcher.Constraint("Horizontal", 3, 2, 7, 2),
    Sketcher.Constraint("Horizontal", 5, 2, 8, 2),
    Sketcher.Constraint("Horizontal", 7, 2, 10, 2),
    Sketcher.Constraint("Horizontal", 12, 2, 15, 2),
    Sketcher.Constraint("Horizontal", 17, 2, 18, 2),
    Sketcher.Constraint("Horizontal", 15, 2, 19, 2),
    Sketcher.Constraint("Horizontal", 14, 2, 20, 2),
    Sketcher.Constraint("Horizontal", 19, 2, 22, 2),
    Sketcher.Constraint("Vertical", 2, 2, 4, 2),
    Sketcher.Constraint("Vertical", 1, 2, 5, 2),
    Sketcher.Constraint("Vertical", 14, 2, 16, 2),
    Sketcher.Constraint("Equal", 5, 6),
    Sketcher.Constraint("Equal", 9, 14),
    Sketcher.Constraint("Equal", 17, 18),
    Sketcher.Constraint("Equal", 11, 12),
    Sketcher.Constraint("Angle", 0, Q("120 deg")),
    Sketcher.Constraint("DistanceY", 12, 2, -1, 1, Q("56 mm")),
    Sketcher.Constraint("DistanceX", 2, 2, 6, 2, Q("54 mm")),
    Sketcher.Constraint("DistanceY", 16, 2, 5, 2, Q("47 mm")),
    Sketcher.Constraint("DistanceX", 12, 2, 19, 2, Q("51 mm")),
    Sketcher.Constraint("DistanceY", 0, 2, -1, 1, Q("3.5 mm")),
    Sketcher.Constraint("DistanceX", 3, 2, 12, 2, Q("1.5 mm")),
    Sketcher.Constraint("DistanceX", 2, 1, 2, 2, Q("3.175426 mm")),
    Sketcher.Constraint("DistanceX", -1, 1, 0, 2, Q("0.324574 mm")),
])
pocket4 = body.newObject("PartDesign::Pocket", "Pocket003")
pocket4.Profile = sketch7
pocket4.Length = 3
pocket4.Reversed = True

# Sketch on XY plane
sketch8 = body.newObject("Sketcher::SketchObject", "Sketch007")
sketch8.AttachmentSupport = (doc.getObject("XY_Plane"), [""])
sketch8.MapMode = "FlatFace"
sketch8.AttachmentOffset = App.Placement(App.Vector(0, 0, -2), App.Rotation())
sketch8.addGeometry([
    Part.Circle(App.Vector(30.5, -30.5, 0), App.Vector(0, 0, 1), 1.5),  # 0
    Part.Circle(App.Vector(30.5, -35.5, 0), App.Vector(0, 0, 1), 1.5),  # 1
    Part.Circle(App.Vector(26.2, -33, 0), App.Vector(0, 0, 1), 1.5),  # 2
    Part.Circle(App.Vector(26.2, -28, 0), App.Vector(0, 0, 1), 1.5),  # 3
    Part.Circle(App.Vector(30.5, -25.5, 0), App.Vector(0, 0, 1), 1.5),  # 4
    Part.Circle(App.Vector(34.8, -28, 0), App.Vector(0, 0, 1), 1.5),  # 5
    Part.Circle(App.Vector(34.8, -33, 0), App.Vector(0, 0, 1), 1.5),  # 6
    Part.Circle(App.Vector(26.2, -38, 0), App.Vector(0, 0, 1), 1.5),  # 7
    Part.Circle(App.Vector(21.8, -30.5, 0), App.Vector(0, 0, 1), 1.5),  # 8
    Part.Circle(App.Vector(26.2, -23, 0), App.Vector(0, 0, 1), 1.5),  # 9
    Part.Circle(App.Vector(34.8, -23, 0), App.Vector(0, 0, 1), 1.5),  # 10
    Part.Circle(App.Vector(39.2, -30.5, 0), App.Vector(0, 0, 1), 1.5),  # 11
    Part.Circle(App.Vector(34.8, -38, 0), App.Vector(0, 0, 1), 1.5),  # 12
], False)
sketch8.addConstraint([
    Sketcher.Constraint("Equal", 0, 1),
    Sketcher.Constraint("Equal", 1, 2),
    Sketcher.Constraint("Equal", 2, 3),
    Sketcher.Constraint("Equal", 3, 4),
    Sketcher.Constraint("Equal", 4, 5),
    Sketcher.Constraint("Equal", 5, 6),
    Sketcher.Constraint("Equal", 6, 7),
    Sketcher.Constraint("Equal", 7, 8),
    Sketcher.Constraint("Equal", 8, 9),
    Sketcher.Constraint("Equal", 9, 10),
    Sketcher.Constraint("Equal", 10, 11),
    Sketcher.Constraint("Equal", 11, 12),
    Sketcher.Constraint("Horizontal", 3, 3, 5, 3),
    Sketcher.Constraint("Horizontal", 2, 3, 6, 3),
    Sketcher.Constraint("Horizontal", 0, 3, 8, 3),
    Sketcher.Constraint("Horizontal", 9, 3, 10, 3),
    Sketcher.Constraint("Horizontal", 8, 3, 11, 3),
    Sketcher.Constraint("Horizontal", 7, 3, 12, 3),
    Sketcher.Constraint("Vertical", 0, 3, 1, 3),
    Sketcher.Constraint("Vertical", 2, 3, 3, 3),
    Sketcher.Constraint("Vertical", 1, 3, 4, 3),
    Sketcher.Constraint("Vertical", 5, 3, 6, 3),
    Sketcher.Constraint("Vertical", 3, 3, 7, 3),
    Sketcher.Constraint("Vertical", 7, 3, 9, 3),
    Sketcher.Constraint("Vertical", 6, 3, 10, 3),
    Sketcher.Constraint("Vertical", 10, 3, 12, 3),
    Sketcher.Constraint("Diameter", 0, Q("3 mm")),
    Sketcher.Constraint("DistanceY", 2, 3, -1, 1, Q("33 mm")),
    Sketcher.Constraint("DistanceY", 3, 3, -1, 1, Q("28 mm")),
    Sketcher.Constraint("DistanceY", 7, 3, -1, 1, Q("38 mm")),
    Sketcher.Constraint("DistanceY", 9, 3, -1, 1, Q("23 mm")),
    Sketcher.Constraint("DistanceY", 1, 3, 0, 3, Q("5 mm")),
    Sketcher.Constraint("DistanceY", 0, 3, 4, 3, Q("5 mm")),
    Sketcher.Constraint("DistanceX", -1, 1, 0, 3, Q("30.5 mm")),
    Sketcher.Constraint("DistanceY", 0, 3, -1, 1, Q("30.5 mm")),
    Sketcher.Constraint("DistanceX", -1, 1, 2, 3, Q("26.169873 mm")),
    Sketcher.Constraint("DistanceX", -1, 1, 5, 3, Q("34.830127 mm")),
    Sketcher.Constraint("DistanceX", -1, 1, 8, 3, Q("21.839746 mm")),
    Sketcher.Constraint("DistanceX", -1, 1, 11, 3, Q("39.160254 mm")),
])
pocket5 = body.newObject("PartDesign::Pocket", "Pocket004")
pocket5.Profile = sketch8
pocket5.Type = "ThroughAll"
pocket5.Reversed = True
doc.recompute()

fillet = body.newObject("PartDesign::Fillet", "Fillet")
fillet.Base = (pocket5, edges_at(pocket5, [
    (-2.3, -63.3, 2),
    (-2.3, 2.3, 2),
    (63.3, 2.3, 2),
    (63.3, -63.3, 2),
]))
fillet.Radius = 2

doc.recompute()
